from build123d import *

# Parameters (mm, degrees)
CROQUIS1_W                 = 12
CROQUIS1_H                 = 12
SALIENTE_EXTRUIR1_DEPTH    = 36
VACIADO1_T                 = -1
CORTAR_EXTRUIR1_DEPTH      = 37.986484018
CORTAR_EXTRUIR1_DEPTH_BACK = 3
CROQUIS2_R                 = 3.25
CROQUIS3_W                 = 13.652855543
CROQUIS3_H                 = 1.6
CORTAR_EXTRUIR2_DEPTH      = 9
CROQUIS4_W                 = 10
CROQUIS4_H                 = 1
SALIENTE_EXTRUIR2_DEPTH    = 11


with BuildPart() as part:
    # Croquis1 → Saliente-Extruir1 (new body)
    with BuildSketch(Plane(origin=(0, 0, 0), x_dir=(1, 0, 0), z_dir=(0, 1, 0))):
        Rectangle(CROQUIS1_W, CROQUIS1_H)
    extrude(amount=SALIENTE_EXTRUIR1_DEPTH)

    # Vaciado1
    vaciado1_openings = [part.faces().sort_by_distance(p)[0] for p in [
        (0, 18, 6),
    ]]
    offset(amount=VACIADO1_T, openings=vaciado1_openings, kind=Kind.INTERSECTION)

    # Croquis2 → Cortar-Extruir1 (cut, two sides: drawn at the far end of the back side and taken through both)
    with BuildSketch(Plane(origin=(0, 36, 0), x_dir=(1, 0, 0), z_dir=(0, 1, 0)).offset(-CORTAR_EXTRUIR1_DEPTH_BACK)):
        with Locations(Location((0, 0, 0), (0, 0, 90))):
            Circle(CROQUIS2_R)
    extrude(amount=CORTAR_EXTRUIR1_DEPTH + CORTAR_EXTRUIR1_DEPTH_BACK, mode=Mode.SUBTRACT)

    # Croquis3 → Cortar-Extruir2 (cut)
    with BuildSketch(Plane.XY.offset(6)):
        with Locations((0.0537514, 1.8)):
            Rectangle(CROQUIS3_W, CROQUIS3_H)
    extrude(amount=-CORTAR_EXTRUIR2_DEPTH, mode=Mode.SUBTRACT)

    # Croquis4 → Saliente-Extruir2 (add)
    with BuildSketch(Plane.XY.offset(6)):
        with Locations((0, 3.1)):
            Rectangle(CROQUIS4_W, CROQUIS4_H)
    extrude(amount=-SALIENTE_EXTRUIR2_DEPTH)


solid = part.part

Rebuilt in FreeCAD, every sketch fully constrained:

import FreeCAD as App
import Part
import Sketcher


def faces_at(feature, points):
    """Names of the faces that lie closest to the given points."""
    faces = feature.Shape.Faces
    near = lambda p: min(range(len(faces)), key=lambda i: faces[i].distToShape(Part.Vertex(*p))[0])
    return sorted({f"Face{near(p) + 1}" for p in points})


def add_polygon(sketch, points):
    """Adds a closed chain of lines whose ends are joined by coincident constraints."""
    first, n = sketch.GeometryCount, len(points)
    for a, b in zip(points, points[1:] + points[:1]):
        sketch.addGeometry(Part.LineSegment(App.Vector(*a, 0), App.Vector(*b, 0)), False)
    for i in range(n):
        sketch.addConstraint(Sketcher.Constraint("Coincident", first + i, 2, first + (i + 1) % n, 1))

doc = App.newDocument("Part")
params = doc.addObject("Spreadsheet::Sheet", "Params")
for row, (alias, value) in enumerate([
    ("sketch1_width", "12 mm"),
    ("pad1_length", "36 mm"),
    ("thickness_wall", "1 mm"),
    ("sketch2_diameter", "6.5 mm"),
    ("pocket1_length", "37.986484 mm"),
    ("pocket1_length2", "3 mm"),
    ("sketch3_height", "1.6 mm"),
    ("pocket2_length", "9 mm"),
    ("sketch4_width", "10 mm"),
    ("sketch4_height", "1 mm"),
    ("pad2_length", "11 mm"),
], start=1):
    params.set(f"A{row}", alias)
    params.set(f"B{row}", "=" + value)
    params.setAlias(f"B{row}", alias)

body = doc.addObject("PartDesign::Body", "Body")

# Sketch on XZ plane
sketch1 = body.newObject("Sketcher::SketchObject", "Sketch")
sketch1.AttachmentSupport = (doc.getObject("XZ_Plane"), [""])
sketch1.MapMode = "FlatFace"
add_polygon(sketch1, [(-6, -6), (-6, 6), (6, 6), (6, -6)])  # lines 0-3
sketch1.addConstraint(Sketcher.Constraint("Vertical", 0))
sketch1.addConstraint(Sketcher.Constraint("Horizontal", 1))
sketch1.addConstraint(Sketcher.Constraint("Vertical", 2))
sketch1.addConstraint(Sketcher.Constraint("Horizontal", 3))
sketch1.addConstraint(Sketcher.Constraint("Symmetric", 0, 2, 2, 2, -1, 1))
sketch1.addConstraint(Sketcher.Constraint("Equal", 3, 0))
sketch1.addConstraint(Sketcher.Constraint("DistanceX", 1, 1, 1, 2, 12.0))
sketch1.setExpression("Constraints[10]", "Params.sketch1_width")
pad1 = body.newObject("PartDesign::Pad", "Pad")
pad1.Profile = sketch1
pad1.setExpression("Length", "Params.pad1_length")
pad1.Reversed = True
doc.recompute()

thickness = body.newObject("PartDesign::Thickness", "Thickness")
thickness.Base = (pad1, faces_at(pad1, [(0, 18, 6)]))
thickness.setExpression("Value", "Params.thickness_wall")
thickness.Reversed = True
thickness.Join = "Intersection"

# Sketch on XZ plane
sketch2 = body.newObject("Sketcher::SketchObject", "Sketch001")
sketch2.AttachmentSupport = (doc.getObject("XZ_Plane"), [""])
sketch2.MapMode = "FlatFace"
sketch2.AttachmentOffset = App.Placement(App.Vector(0, 0, -36), App.Rotation())
sketch2.addGeometry(Part.Circle(App.Vector(0, 0, 0), App.Vector(0, 0, 1), 3.25), False)
sketch2.addConstraint(Sketcher.Constraint("Coincident", 0, 3, -1, 1))
sketch2.addConstraint(Sketcher.Constraint("Diameter", 0, 6.5))
sketch2.setExpression("Constraints[1]", "Params.sketch2_diameter")
pocket1 = body.newObject("PartDesign::Pocket", "Pocket")
pocket1.Profile = sketch2
pocket1.Type = "TwoLengths"
pocket1.setExpression("Length", "Params.pocket1_length")
pocket1.setExpression("Length2", "Params.pocket1_length2")

# Sketch on XY plane
sketch3 = body.newObject("Sketcher::SketchObject", "Sketch002")
sketch3.AttachmentSupport = (doc.getObject("XY_Plane"), [""])
sketch3.MapMode = "FlatFace"
sketch3.AttachmentOffset = App.Placement(App.Vector(0, 0, 6), App.Rotation())
add_polygon(sketch3, [(-6.772676, 2.6), (-6.772676, 1), (6.880179, 1), (6.880179, 2.6)])  # lines 0-3
sketch3.addConstraint(Sketcher.Constraint("Vertical", 0))
sketch3.addConstraint(Sketcher.Constraint("Horizontal", 1))
sketch3.addConstraint(Sketcher.Constraint("Vertical", 2))
sketch3.addConstraint(Sketcher.Constraint("Horizontal", 3))
sketch3.addConstraint(Sketcher.Constraint("DistanceY", 0, 2, 0, 1, 1.6))
sketch3.addConstraint(Sketcher.Constraint("DistanceY", -1, 1, 0, 2, 1.0))
sketch3.addConstraint(Sketcher.Constraint("DistanceX", 1, 1, 1, 2, 13.652856))
sketch3.addConstraint(Sketcher.Constraint("DistanceX", -1, 1, 1, 2, 6.880179))
sketch3.setExpression("Constraints[8]", "Params.sketch3_height")
pocket2 = body.newObject("PartDesign::Pocket", "Pocket001")
pocket2.Profile = sketch3
pocket2.setExpression("Length", "Params.pocket2_length")

# Sketch on XY plane
sketch4 = body.newObject("Sketcher::SketchObject", "Sketch003")
sketch4.AttachmentSupport = (doc.getObject("XY_Plane"), [""])
sketch4.MapMode = "FlatFace"
sketch4.AttachmentOffset = App.Placement(App.Vector(0, 0, 6), App.Rotation())
add_polygon(sketch4, [(-5, 3.6), (-5, 2.6), (5, 2.6), (5, 3.6)])  # lines 0-3
sketch4.addConstraint(Sketcher.Constraint("Vertical", 0))
sketch4.addConstraint(Sketcher.Constraint("Horizontal", 1))
sketch4.addConstraint(Sketcher.Constraint("Vertical", 2))
sketch4.addConstraint(Sketcher.Constraint("Horizontal", 3))
sketch4.addConstraint(Sketcher.Constraint("DistanceX", 1, 1, 1, 2, 10.0))
sketch4.addConstraint(Sketcher.Constraint("DistanceY", 0, 2, 0, 1, 1.0))
sketch4.addConstraint(Sketcher.Constraint("DistanceX", 0, 2, -1, 1, 5.0))
sketch4.addConstraint(Sketcher.Constraint("DistanceY", -1, 1, 0, 2, 2.6))
sketch4.setExpression("Constraints[8]", "Params.sketch4_width")
sketch4.setExpression("Constraints[9]", "Params.sketch4_height")
pad2 = body.newObject("PartDesign::Pad", "Pad001")
pad2.Profile = sketch4
pad2.setExpression("Length", "Params.pad2_length")
pad2.Reversed = True

doc.recompute()
